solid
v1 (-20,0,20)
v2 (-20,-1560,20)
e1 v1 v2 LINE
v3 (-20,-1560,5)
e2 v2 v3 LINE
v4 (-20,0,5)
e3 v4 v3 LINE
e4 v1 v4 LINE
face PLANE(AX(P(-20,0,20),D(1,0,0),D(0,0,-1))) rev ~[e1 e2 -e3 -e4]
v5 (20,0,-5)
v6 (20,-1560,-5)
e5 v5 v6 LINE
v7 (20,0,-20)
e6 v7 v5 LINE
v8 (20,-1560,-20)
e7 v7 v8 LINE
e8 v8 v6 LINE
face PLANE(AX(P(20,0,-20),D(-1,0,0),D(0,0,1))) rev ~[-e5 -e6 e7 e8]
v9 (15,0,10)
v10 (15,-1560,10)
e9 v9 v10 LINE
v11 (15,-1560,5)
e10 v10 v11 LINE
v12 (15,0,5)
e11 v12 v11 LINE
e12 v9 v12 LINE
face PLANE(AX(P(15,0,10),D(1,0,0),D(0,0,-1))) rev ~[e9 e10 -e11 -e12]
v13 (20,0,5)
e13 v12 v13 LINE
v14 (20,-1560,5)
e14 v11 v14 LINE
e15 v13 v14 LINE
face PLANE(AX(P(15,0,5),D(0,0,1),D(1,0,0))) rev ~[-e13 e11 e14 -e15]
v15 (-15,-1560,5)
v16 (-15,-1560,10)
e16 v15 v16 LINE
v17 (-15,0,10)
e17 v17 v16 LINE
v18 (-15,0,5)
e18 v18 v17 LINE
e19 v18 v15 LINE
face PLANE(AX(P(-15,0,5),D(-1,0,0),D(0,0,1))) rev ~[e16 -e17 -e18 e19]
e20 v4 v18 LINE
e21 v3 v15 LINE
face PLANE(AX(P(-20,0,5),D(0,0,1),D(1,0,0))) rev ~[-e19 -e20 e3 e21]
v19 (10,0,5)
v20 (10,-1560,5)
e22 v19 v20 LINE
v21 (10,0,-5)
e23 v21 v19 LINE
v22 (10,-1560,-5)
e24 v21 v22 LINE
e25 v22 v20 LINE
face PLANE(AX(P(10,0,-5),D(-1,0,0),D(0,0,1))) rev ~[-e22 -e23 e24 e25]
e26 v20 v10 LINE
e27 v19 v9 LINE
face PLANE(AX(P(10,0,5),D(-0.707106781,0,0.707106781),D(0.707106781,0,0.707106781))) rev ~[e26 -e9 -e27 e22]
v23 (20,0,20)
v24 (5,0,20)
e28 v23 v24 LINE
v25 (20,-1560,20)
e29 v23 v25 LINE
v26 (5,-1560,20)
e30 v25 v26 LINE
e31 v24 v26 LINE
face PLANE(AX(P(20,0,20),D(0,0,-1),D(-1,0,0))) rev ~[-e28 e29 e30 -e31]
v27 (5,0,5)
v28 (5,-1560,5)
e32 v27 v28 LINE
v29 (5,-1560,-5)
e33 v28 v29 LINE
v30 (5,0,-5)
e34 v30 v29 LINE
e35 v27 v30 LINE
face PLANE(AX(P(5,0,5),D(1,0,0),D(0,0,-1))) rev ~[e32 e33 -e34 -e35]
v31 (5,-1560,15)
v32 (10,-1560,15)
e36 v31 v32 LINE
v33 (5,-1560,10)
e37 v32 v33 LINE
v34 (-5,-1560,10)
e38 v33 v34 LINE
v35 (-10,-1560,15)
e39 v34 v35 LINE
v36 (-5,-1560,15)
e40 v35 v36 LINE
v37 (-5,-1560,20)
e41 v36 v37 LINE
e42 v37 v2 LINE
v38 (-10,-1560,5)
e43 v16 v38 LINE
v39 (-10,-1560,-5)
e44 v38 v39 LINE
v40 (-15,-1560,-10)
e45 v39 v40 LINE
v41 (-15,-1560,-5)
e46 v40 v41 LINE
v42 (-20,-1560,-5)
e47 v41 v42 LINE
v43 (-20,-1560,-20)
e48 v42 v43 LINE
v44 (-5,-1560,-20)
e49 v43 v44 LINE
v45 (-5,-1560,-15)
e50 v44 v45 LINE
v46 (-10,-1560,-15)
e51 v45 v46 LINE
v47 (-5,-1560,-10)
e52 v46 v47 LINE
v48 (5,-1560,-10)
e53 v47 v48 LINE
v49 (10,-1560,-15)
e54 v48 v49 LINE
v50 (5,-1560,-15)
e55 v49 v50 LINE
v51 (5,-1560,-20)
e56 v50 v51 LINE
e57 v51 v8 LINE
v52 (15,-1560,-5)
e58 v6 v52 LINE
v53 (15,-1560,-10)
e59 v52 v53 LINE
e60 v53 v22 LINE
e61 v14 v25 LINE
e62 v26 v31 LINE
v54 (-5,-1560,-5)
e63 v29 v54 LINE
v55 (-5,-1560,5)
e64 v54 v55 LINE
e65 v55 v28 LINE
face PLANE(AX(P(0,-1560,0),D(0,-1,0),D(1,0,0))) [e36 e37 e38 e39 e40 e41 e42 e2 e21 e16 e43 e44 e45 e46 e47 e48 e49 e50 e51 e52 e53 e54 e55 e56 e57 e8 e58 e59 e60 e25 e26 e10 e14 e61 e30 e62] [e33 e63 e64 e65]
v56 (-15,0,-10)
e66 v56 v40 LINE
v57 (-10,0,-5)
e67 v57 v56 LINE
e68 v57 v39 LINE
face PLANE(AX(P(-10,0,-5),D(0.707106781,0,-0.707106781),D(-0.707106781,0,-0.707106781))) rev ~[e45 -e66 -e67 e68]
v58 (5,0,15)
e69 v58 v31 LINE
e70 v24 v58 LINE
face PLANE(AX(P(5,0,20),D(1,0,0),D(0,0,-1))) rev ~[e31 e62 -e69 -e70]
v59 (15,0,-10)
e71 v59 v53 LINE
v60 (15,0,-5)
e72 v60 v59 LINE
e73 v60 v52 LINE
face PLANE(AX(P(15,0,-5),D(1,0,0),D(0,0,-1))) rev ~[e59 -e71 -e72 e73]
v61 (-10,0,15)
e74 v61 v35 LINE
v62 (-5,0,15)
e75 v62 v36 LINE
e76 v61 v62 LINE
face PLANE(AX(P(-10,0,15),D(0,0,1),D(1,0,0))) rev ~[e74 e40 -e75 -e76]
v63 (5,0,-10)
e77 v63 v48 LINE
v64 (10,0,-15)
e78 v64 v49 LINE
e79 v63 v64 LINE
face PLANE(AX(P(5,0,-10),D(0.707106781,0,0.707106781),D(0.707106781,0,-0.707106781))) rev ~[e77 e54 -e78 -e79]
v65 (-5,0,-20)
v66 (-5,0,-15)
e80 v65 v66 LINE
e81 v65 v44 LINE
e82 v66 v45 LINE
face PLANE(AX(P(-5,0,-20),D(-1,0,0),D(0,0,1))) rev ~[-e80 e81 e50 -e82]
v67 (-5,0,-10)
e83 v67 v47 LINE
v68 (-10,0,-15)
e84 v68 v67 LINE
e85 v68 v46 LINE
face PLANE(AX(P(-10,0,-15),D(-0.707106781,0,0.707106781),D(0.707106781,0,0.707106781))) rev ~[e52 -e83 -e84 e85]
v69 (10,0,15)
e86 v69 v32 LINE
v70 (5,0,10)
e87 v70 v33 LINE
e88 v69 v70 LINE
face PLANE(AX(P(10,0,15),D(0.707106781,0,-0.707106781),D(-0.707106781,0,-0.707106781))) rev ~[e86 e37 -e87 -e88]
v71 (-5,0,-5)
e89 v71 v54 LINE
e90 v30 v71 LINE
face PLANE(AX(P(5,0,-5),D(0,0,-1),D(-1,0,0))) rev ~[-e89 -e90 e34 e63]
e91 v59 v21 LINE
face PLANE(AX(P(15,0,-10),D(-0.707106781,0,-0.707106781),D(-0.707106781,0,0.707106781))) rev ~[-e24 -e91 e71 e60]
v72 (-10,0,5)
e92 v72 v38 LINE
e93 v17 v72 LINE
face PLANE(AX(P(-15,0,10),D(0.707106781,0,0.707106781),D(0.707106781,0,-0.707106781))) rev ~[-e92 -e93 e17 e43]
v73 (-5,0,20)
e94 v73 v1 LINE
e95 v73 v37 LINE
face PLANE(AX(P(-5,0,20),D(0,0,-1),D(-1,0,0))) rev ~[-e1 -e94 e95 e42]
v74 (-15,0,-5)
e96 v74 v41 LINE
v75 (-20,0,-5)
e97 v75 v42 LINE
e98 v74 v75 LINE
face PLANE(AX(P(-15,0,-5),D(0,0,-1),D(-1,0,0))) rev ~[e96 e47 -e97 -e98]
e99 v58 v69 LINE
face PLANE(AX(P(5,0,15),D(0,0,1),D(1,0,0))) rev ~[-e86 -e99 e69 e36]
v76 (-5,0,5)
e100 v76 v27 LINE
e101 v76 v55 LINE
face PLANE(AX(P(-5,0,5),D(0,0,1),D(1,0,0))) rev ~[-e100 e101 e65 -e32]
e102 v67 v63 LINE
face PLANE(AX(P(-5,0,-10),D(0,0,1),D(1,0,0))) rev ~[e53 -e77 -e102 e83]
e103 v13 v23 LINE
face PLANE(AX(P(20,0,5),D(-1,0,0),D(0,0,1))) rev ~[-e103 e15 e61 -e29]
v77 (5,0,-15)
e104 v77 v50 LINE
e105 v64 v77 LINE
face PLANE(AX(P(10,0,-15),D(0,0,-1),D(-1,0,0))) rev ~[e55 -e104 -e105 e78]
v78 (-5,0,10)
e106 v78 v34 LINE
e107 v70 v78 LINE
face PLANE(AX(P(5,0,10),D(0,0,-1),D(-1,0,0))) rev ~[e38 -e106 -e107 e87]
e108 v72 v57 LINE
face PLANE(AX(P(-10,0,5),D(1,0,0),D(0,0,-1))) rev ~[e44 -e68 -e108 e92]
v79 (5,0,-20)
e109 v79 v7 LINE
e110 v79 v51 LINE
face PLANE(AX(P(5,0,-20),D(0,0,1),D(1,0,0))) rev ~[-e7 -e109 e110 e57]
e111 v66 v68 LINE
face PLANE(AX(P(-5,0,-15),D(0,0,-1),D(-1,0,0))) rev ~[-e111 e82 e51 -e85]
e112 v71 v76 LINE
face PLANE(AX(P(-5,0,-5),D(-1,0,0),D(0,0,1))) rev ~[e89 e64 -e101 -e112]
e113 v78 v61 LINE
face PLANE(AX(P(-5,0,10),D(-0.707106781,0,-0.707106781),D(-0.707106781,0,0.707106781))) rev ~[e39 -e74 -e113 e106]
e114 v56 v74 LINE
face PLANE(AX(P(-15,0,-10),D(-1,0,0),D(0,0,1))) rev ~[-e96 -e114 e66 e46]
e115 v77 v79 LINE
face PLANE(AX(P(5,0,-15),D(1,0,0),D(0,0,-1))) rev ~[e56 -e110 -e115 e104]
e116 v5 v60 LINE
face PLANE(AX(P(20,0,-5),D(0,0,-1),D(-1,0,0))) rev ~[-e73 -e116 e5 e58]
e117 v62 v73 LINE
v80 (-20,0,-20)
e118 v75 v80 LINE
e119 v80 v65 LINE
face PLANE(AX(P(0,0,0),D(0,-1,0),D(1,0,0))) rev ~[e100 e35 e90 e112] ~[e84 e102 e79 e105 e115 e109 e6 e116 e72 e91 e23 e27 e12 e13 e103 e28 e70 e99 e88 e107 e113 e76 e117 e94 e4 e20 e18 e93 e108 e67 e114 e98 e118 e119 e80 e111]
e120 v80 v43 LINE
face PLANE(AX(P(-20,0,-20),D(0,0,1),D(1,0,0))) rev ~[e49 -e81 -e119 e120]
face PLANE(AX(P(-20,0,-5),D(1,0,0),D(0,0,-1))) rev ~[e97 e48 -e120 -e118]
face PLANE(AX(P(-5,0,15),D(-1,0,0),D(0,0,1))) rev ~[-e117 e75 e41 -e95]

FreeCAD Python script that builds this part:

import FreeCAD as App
import Part
import Sketcher

V = App.Vector

doc = App.newDocument("Part")
body = doc.addObject("PartDesign::Body", "Body")

# Sketch on XZ plane
sketch1 = doc.addObject("Sketcher::SketchObject", "Sketch")
body.addObject(sketch1)
sketch1.AttachmentSupport = (doc.XZ_Plane, [""])
sketch1.MapMode = "FlatFace"
sketch1.addGeometry(Part.LineSegment(V(20, 5, 0), V(20, 20, 0)), False)
sketch1.addGeometry(Part.LineSegment(V(20, 20, 0), V(5, 20, 0)), False)
sketch1.addGeometry(Part.LineSegment(V(5, 20, 0), V(5, 15, 0)), False)
sketch1.addGeometry(Part.LineSegment(V(5, 15, 0), V(10, 15, 0)), False)
sketch1.addGeometry(Part.LineSegment(V(10, 15, 0), V(5, 10, 0)), False)
sketch1.addGeometry(Part.LineSegment(V(5, 10, 0), V(-5, 10, 0)), False)
sketch1.addGeometry(Part.LineSegment(V(-5, 10, 0), V(-10, 15, 0)), False)
sketch1.addGeometry(Part.LineSegment(V(-10, 15, 0), V(-5, 15, 0)), False)
sketch1.addGeometry(Part.LineSegment(V(-5, 15, 0), V(-5, 20, 0)), False)
sketch1.addGeometry(Part.LineSegment(V(-5, 20, 0), V(-20, 20, 0)), False)
sketch1.addGeometry(Part.LineSegment(V(-20, 20, 0), V(-20, 5, 0)), False)
sketch1.addGeometry(Part.LineSegment(V(-20, 5, 0), V(-15, 5, 0)), False)
sketch1.addGeometry(Part.LineSegment(V(-15, 5, 0), V(-15, 10, 0)), False)
sketch1.addGeometry(Part.LineSegment(V(-15, 10, 0), V(-10, 5, 0)), False)
sketch1.addGeometry(Part.LineSegment(V(-10, 5, 0), V(-10, -5, 0)), False)
sketch1.addGeometry(Part.LineSegment(V(-10, -5, 0), V(-15, -10, 0)), False)
sketch1.addGeometry(Part.LineSegment(V(-15, -10, 0), V(-15, -5, 0)), False)
sketch1.addGeometry(Part.LineSegment(V(-15, -5, 0), V(-20, -5, 0)), False)
sketch1.addGeometry(Part.LineSegment(V(-20, -5, 0), V(-20, -20, 0)), False)
sketch1.addGeometry(Part.LineSegment(V(-20, -20, 0), V(-5, -20, 0)), False)
sketch1.addGeometry(Part.LineSegment(V(-5, -20, 0), V(-5, -15, 0)), False)
sketch1.addGeometry(Part.LineSegment(V(-5, -15, 0), V(-10, -15, 0)), False)
sketch1.addGeometry(Part.LineSegment(V(-10, -15, 0), V(-5, -10, 0)), False)
sketch1.addGeometry(Part.LineSegment(V(-5, -10, 0), V(5, -10, 0)), False)
sketch1.addGeometry(Part.LineSegment(V(5, -10, 0), V(10, -15, 0)), False)
sketch1.addGeometry(Part.LineSegment(V(10, -15, 0), V(5, -15, 0)), False)
sketch1.addGeometry(Part.LineSegment(V(5, -15, 0), V(5, -20, 0)), False)
sketch1.addGeometry(Part.LineSegment(V(5, -20, 0), V(20, -20, 0)), False)
sketch1.addGeometry(Part.LineSegment(V(20, -20, 0), V(20, -5, 0)), False)
sketch1.addGeometry(Part.LineSegment(V(20, -5, 0), V(15, -5, 0)), False)
sketch1.addGeometry(Part.LineSegment(V(15, -5, 0), V(15, -10, 0)), False)
sketch1.addGeometry(Part.LineSegment(V(15, -10, 0), V(10, -5, 0)), False)
sketch1.addGeometry(Part.LineSegment(V(10, -5, 0), V(10, 5, 0)), False)
sketch1.addGeometry(Part.LineSegment(V(10, 5, 0), V(15, 10, 0)), False)
sketch1.addGeometry(Part.LineSegment(V(15, 10, 0), V(15, 5, 0)), False)
sketch1.addGeometry(Part.LineSegment(V(15, 5, 0), V(20, 5, 0)), False)
sketch1.addGeometry(Part.LineSegment(V(-5, -5, 0), V(-5, 5, 0)), False)
sketch1.addGeometry(Part.LineSegment(V(-5, 5, 0), V(5, 5, 0)), False)
sketch1.addGeometry(Part.LineSegment(V(5, 5, 0), V(5, -5, 0)), False)
sketch1.addGeometry(Part.LineSegment(V(5, -5, 0), V(-5, -5, 0)), False)
sketch1.addConstraint(Sketcher.Constraint("Coincident", 0, 2, 1, 1))
sketch1.addConstraint(Sketcher.Constraint("Coincident", 1, 2, 2, 1))
sketch1.addConstraint(Sketcher.Constraint("Coincident", 2, 2, 3, 1))
sketch1.addConstraint(Sketcher.Constraint("Coincident", 3, 2, 4, 1))
sketch1.addConstraint(Sketcher.Constraint("Coincident", 4, 2, 5, 1))
sketch1.addConstraint(Sketcher.Constraint("Coincident", 5, 2, 6, 1))
sketch1.addConstraint(Sketcher.Constraint("Coincident", 6, 2, 7, 1))
sketch1.addConstraint(Sketcher.Constraint("Coincident", 7, 2, 8, 1))
sketch1.addConstraint(Sketcher.Constraint("Coincident", 8, 2, 9, 1))
sketch1.addConstraint(Sketcher.Constraint("Coincident", 9, 2, 10, 1))
sketch1.addConstraint(Sketcher.Constraint("Coincident", 10, 2, 11, 1))
sketch1.addConstraint(Sketcher.Constraint("Coincident", 11, 2, 12, 1))
sketch1.addConstraint(Sketcher.Constraint("Coincident", 12, 2, 13, 1))
sketch1.addConstraint(Sketcher.Constraint("Coincident", 13, 2, 14, 1))
sketch1.addConstraint(Sketcher.Constraint("Coincident", 14, 2, 15, 1))
sketch1.addConstraint(Sketcher.Constraint("Coincident", 15, 2, 16, 1))
sketch1.addConstraint(Sketcher.Constraint("Coincident", 16, 2, 17, 1))
sketch1.addConstraint(Sketcher.Constraint("Coincident", 17, 2, 18, 1))
sketch1.addConstraint(Sketcher.Constraint("Coincident", 18, 2, 19, 1))
sketch1.addConstraint(Sketcher.Constraint("Coincident", 19, 2, 20, 1))
sketch1.addConstraint(Sketcher.Constraint("Coincident", 20, 2, 21, 1))
sketch1.addConstraint(Sketcher.Constraint("Coincident", 21, 2, 22, 1))
sketch1.addConstraint(Sketcher.Constraint("Coincident", 22, 2, 23, 1))
sketch1.addConstraint(Sketcher.Constraint("Coincident", 23, 2, 24, 1))
sketch1.addConstraint(Sketcher.Constraint("Coincident", 24, 2, 25, 1))
sketch1.addConstraint(Sketcher.Constraint("Coincident", 25, 2, 26, 1))
sketch1.addConstraint(Sketcher.Constraint("Coincident", 26, 2, 27, 1))
sketch1.addConstraint(Sketcher.Constraint("Coincident", 27, 2, 28, 1))
sketch1.addConstraint(Sketcher.Constraint("Coincident", 28, 2, 29, 1))
sketch1.addConstraint(Sketcher.Constraint("Coincident", 29, 2, 30, 1))
sketch1.addConstraint(Sketcher.Constraint("Coincident", 30, 2, 31, 1))
sketch1.addConstraint(Sketcher.Constraint("Coincident", 31, 2, 32, 1))
sketch1.addConstraint(Sketcher.Constraint("Coincident", 32, 2, 33, 1))
sketch1.addConstraint(Sketcher.Constraint("Coincident", 33, 2, 34, 1))
sketch1.addConstraint(Sketcher.Constraint("Coincident", 34, 2, 35, 1))
sketch1.addConstraint(Sketcher.Constraint("Coincident", 35, 2, 0, 1))
sketch1.addConstraint(Sketcher.Constraint("Coincident", 36, 2, 37, 1))
sketch1.addConstraint(Sketcher.Constraint("Coincident", 37, 2, 38, 1))
sketch1.addConstraint(Sketcher.Constraint("Coincident", 38, 2, 39, 1))
sketch1.addConstraint(Sketcher.Constraint("Coincident", 39, 2, 36, 1))
sketch1.addConstraint(Sketcher.Constraint("Vertical", 0))
sketch1.addConstraint(Sketcher.Constraint("Horizontal", 1))
sketch1.addConstraint(Sketcher.Constraint("Vertical", 2))
sketch1.addConstraint(Sketcher.Constraint("Horizontal", 3))
sketch1.addConstraint(Sketcher.Constraint("Horizontal", 5))
sketch1.addConstraint(Sketcher.Constraint("Horizontal", 7))
sketch1.addConstraint(Sketcher.Constraint("Vertical", 8))
sketch1.addConstraint(Sketcher.Constraint("Horizontal", 9))
sketch1.addConstraint(Sketcher.Constraint("Vertical", 10))
sketch1.addConstraint(Sketcher.Constraint("Horizontal", 11))
sketch1.addConstraint(Sketcher.Constraint("Vertical", 12))
sketch1.addConstraint(Sketcher.Constraint("Vertical", 14))
sketch1.addConstraint(Sketcher.Constraint("Vertical", 16))
sketch1.addConstraint(Sketcher.Constraint("Horizontal", 17))
sketch1.addConstraint(Sketcher.Constraint("Vertical", 18))
sketch1.addConstraint(Sketcher.Constraint("Horizontal", 19))
sketch1.addConstraint(Sketcher.Constraint("Vertical", 20))
sketch1.addConstraint(Sketcher.Constraint("Horizontal", 21))
sketch1.addConstraint(Sketcher.Constraint("Horizontal", 23))
sketch1.addConstraint(Sketcher.Constraint("Horizontal", 25))
sketch1.addConstraint(Sketcher.Constraint("Vertical", 26))
sketch1.addConstraint(Sketcher.Constraint("Horizontal", 27))
sketch1.addConstraint(Sketcher.Constraint("Vertical", 28))
sketch1.addConstraint(Sketcher.Constraint("Horizontal", 29))
sketch1.addConstraint(Sketcher.Constraint("Vertical", 30))
sketch1.addConstraint(Sketcher.Constraint("Vertical", 32))
sketch1.addConstraint(Sketcher.Constraint("Vertical", 34))
sketch1.addConstraint(Sketcher.Constraint("Horizontal", 35))
sketch1.addConstraint(Sketcher.Constraint("Vertical", 36))
sketch1.addConstraint(Sketcher.Constraint("Horizontal", 37))
sketch1.addConstraint(Sketcher.Constraint("Vertical", 38))
sketch1.addConstraint(Sketcher.Constraint("Horizontal", 39))
sketch1.addConstraint(Sketcher.Constraint("Symmetric", 0, 2, 18, 2, -1, 1))
sketch1.addConstraint(Sketcher.Constraint("Symmetric", 2, 2, 20, 2, -1, 1))
sketch1.addConstraint(Sketcher.Constraint("Symmetric", 4, 2, 22, 2, -1, 1))
sketch1.addConstraint(Sketcher.Constraint("Symmetric", 6, 2, 24, 2, -1, 1))
sketch1.addConstraint(Sketcher.Constraint("Symmetric", 8, 2, 26, 2, -1, 1))
sketch1.addConstraint(Sketcher.Constraint("Symmetric", 10, 2, 28, 2, -1, 1))
sketch1.addConstraint(Sketcher.Constraint("Symmetric", 12, 2, 30, 2, -1, 1))
sketch1.addConstraint(Sketcher.Constraint("Symmetric", 13, 2, 31, 2, -1, 1))
sketch1.addConstraint(Sketcher.Constraint("Symmetric", 15, 2, 33, 2, -1, 1))
sketch1.addConstraint(Sketcher.Constraint("Symmetric", 36, 2, 38, 2, -1, 1))
sketch1.addConstraint(Sketcher.Constraint("Symmetric", 3, 2, 6, 2, -2))
sketch1.addConstraint(Sketcher.Constraint("Symmetric", 1, 2, 8, 2, -2))
sketch1.addConstraint(Sketcher.Constraint("Symmetric", 17, 2, 28, 2, -2))
sketch1.addConstraint(Sketcher.Constraint("Symmetric", 15, 2, 30, 2, -2))
sketch1.addConstraint(Sketcher.Constraint("Perpendicular", 4, 6))
sketch1.addConstraint(Sketcher.Constraint("Parallel", 6, 13))
sketch1.addConstraint(Sketcher.Constraint("Perpendicular", 13, 15))
sketch1.addConstraint(Sketcher.Constraint("Parallel", 15, 22))
sketch1.addConstraint(Sketcher.Constraint("Perpendicular", 22, 24))
sketch1.addConstraint(Sketcher.Constraint("Perpendicular", 31, 33))
sketch1.addConstraint(Sketcher.Constraint("Horizontal", 5, 2, 12, 2))
sketch1.addConstraint(Sketcher.Constraint("Horizontal", 11, 2, 13, 2))
sketch1.addConstraint(Sketcher.Constraint("Horizontal", 14, 2, 16, 2))
sketch1.addConstraint(Sketcher.Constraint("Horizontal", 32, 2, 34, 2))
sketch1.addConstraint(Sketcher.Constraint("Horizontal", 35, 2, 36, 2))
sketch1.addConstraint(Sketcher.Constraint("Vertical", 2, 2, 4, 2))
sketch1.addConstraint(Sketcher.Constraint("Vertical", 6, 2, 13, 2))
sketch1.addConstraint(Sketcher.Constraint("Vertical", 22, 2, 36, 2))
sketch1.addConstraint(Sketcher.Constraint("Equal", 7, 11))
sketch1.addConstraint(Sketcher.Constraint("Equal", 27, 0))
sketch1.addConstraint(Sketcher.Constraint("Equal", 8, 12))
sketch1.addConstraint(Sketcher.Constraint("Equal", 39, 14))
sketch1.addConstraint(Sketcher.Constraint("DistanceX", 1, 2, 1, 1, 15.0))
sketch1.addConstraint(Sketcher.Constraint("DistanceX", 5, 2, 5, 1, 10.0))
pad1 = doc.addObject("PartDesign::Pad", "Pad")
body.addObject(pad1)
pad1.Profile = sketch1
pad1.Length = 1560

doc.recompute()
